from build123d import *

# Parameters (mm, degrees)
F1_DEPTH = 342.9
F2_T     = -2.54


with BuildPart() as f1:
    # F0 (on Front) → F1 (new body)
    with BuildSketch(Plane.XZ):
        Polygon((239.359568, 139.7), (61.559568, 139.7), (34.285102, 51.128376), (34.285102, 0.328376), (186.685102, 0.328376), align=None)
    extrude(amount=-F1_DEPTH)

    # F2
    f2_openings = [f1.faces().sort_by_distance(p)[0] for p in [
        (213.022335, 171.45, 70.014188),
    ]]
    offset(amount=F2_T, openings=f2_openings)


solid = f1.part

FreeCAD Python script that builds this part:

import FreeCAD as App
import Part
import Sketcher
Q = App.Units.Quantity


def faces_at(feature, points):
    """Names of the faces that lie closest to the given points."""
    faces = feature.Shape.Faces
    near = lambda p: min(range(len(faces)), key=lambda i: faces[i].distToShape(Part.Vertex(*p))[0])
    return sorted({f"Face{near(p) + 1}" for p in points})


def add_polygon(sketch, points):
    """Adds a closed chain of lines whose ends are joined by coincident constraints."""
    first, n = sketch.GeometryCount, len(points)
    for a, b in zip(points, points[1:] + points[:1]):
        sketch.addGeometry(Part.LineSegment(App.Vector(*a, 0), App.Vector(*b, 0)), False)
    for i in range(n):
        sketch.addConstraint(Sketcher.Constraint("Coincident", first + i, 2, first + (i + 1) % n, 1))

doc = App.newDocument("Part")
params = doc.addObject("Spreadsheet::Sheet", "Params")
for row, (alias, value) in enumerate([
    ("sketch1_width", "7 in"),
    ("sketch1_width2", "6 in"),
    ("sketch1_height", "2 in"),
    ("pad1_length", "13.5 in"),
    ("thickness_wall", "0.1 in"),
], start=1):
    params.set(f"A{row}", alias)
    params.set(f"B{row}", "=" + value)
    params.setAlias(f"B{row}", alias)

body = doc.addObject("PartDesign::Body", "Body")

# Sketch on XZ plane
sketch1 = body.newObject("Sketcher::SketchObject", "Sketch")
sketch1.AttachmentSupport = (doc.getObject("XZ_Plane"), [""])
sketch1.MapMode = "FlatFace"
add_polygon(sketch1, [(239, 140), (62, 140), (34, 51), (34, 0), (187, 0)])  # lines 0-4
sketch1.addConstraint(Sketcher.Constraint("Horizontal", 0))
sketch1.addConstraint(Sketcher.Constraint("Vertical", 2))
sketch1.addConstraint(Sketcher.Constraint("Horizontal", 3))
sketch1.addConstraint(Sketcher.Constraint("DistanceX", 0, 2, 0, 1, Q("7 in")))
sketch1.addConstraint(Sketcher.Constraint("DistanceX", 3, 1, 3, 2, Q("6 in")))
sketch1.addConstraint(Sketcher.Constraint("DistanceY", 2, 2, 2, 1, Q("2 in")))
sketch1.addConstraint(Sketcher.Constraint("DistanceY", -1, 1, 0, 2, Q("5.5 in")))
sketch1.addConstraint(Sketcher.Constraint("DistanceX", -1, 1, 3, 2, Q("186.685102 mm")))
sketch1.addConstraint(Sketcher.Constraint("DistanceX", -1, 1, 4, 2, Q("239.359568 mm")))
sketch1.addConstraint(Sketcher.Constraint("Distance", 1, Q("92.675936 mm")))
sketch1.setExpression("Constraints[8]", "Params.sketch1_width")
sketch1.setExpression("Constraints[9]", "Params.sketch1_width2")
sketch1.setExpression("Constraints[10]", "Params.sketch1_height")
pad1 = body.newObject("PartDesign::Pad", "Pad")
pad1.Profile = sketch1
pad1.setExpression("Length", "Params.pad1_length")
pad1.Reversed = True
doc.recompute()

thickness = body.newObject("PartDesign::Thickness", "Thickness")
thickness.Base = (pad1, faces_at(pad1, [(213.022, 171.45, 70.014)]))
thickness.setExpression("Value", "Params.thickness_wall")
thickness.Reversed = True
thickness.Join = "Arc"

doc.recompute()
